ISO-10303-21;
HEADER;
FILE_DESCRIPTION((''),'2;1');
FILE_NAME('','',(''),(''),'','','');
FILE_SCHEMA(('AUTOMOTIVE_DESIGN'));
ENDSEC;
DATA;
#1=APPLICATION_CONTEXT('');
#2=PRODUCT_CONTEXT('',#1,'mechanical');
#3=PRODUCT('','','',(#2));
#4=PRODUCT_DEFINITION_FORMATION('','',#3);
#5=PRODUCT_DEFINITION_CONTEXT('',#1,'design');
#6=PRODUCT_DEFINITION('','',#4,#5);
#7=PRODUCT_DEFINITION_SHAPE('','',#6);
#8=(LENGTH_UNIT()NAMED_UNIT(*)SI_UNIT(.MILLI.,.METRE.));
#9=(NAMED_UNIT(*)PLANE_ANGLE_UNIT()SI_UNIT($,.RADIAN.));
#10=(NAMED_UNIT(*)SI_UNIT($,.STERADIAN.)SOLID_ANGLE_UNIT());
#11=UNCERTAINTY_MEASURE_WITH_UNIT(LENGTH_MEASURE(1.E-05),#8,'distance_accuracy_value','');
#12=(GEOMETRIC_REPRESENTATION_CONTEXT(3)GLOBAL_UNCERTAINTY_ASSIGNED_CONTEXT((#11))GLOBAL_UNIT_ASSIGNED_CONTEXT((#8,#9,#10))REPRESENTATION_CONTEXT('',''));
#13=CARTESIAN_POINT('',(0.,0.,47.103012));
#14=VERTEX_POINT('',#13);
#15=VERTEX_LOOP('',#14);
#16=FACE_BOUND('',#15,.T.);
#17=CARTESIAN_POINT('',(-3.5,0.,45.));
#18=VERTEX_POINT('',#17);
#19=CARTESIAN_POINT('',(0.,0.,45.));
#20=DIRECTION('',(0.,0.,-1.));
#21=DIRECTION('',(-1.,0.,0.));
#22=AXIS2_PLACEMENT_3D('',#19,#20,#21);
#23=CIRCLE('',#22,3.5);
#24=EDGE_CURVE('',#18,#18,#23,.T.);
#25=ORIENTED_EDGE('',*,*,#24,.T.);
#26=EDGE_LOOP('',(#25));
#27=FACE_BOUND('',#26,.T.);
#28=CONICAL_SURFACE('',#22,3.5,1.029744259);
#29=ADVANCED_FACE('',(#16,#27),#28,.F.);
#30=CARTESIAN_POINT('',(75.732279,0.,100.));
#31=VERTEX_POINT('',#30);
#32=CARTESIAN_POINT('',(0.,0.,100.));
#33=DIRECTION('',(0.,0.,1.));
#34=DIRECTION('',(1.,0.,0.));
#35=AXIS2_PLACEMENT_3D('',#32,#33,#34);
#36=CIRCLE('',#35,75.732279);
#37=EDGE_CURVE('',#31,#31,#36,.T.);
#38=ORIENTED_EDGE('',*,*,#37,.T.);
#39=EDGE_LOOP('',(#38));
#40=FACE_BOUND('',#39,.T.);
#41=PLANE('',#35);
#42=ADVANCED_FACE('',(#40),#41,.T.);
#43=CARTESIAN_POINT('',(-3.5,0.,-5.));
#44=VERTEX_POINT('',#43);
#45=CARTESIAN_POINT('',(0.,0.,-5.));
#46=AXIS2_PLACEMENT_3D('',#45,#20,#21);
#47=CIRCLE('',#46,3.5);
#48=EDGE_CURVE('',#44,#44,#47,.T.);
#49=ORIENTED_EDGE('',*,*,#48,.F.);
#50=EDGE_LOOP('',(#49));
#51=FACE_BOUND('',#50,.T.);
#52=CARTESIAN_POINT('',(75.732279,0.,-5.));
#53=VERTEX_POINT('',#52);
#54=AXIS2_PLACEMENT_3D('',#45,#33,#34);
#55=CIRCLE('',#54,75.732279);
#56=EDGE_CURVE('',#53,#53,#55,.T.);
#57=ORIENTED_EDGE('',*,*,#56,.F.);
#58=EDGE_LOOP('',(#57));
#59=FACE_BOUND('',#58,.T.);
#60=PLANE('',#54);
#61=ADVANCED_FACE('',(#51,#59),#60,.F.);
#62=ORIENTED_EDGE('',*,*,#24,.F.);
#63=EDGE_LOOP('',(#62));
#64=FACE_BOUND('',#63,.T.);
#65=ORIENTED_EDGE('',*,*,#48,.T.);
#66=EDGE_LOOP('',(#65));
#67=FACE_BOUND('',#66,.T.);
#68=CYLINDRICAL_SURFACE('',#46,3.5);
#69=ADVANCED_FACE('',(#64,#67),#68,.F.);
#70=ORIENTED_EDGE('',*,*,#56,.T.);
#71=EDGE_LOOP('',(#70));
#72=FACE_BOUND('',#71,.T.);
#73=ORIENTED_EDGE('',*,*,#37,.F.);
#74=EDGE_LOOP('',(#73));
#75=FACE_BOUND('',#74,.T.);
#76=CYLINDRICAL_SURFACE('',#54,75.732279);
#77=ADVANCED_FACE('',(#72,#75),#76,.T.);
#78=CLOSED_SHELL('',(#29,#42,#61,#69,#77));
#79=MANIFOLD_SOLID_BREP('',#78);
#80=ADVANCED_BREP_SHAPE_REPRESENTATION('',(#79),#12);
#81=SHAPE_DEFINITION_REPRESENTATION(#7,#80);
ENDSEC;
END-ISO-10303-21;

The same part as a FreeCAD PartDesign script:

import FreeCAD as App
import Part
import Sketcher
Q = App.Units.Quantity

doc = App.newDocument("Part")
params = doc.addObject("Spreadsheet::Sheet", "Params")
for row, (alias, value) in enumerate([
    ("pad1_length", "100 mm"),
    ("pad1_length2", "5 mm"),
    ("sketch2_diameter", "7 mm"),
    ("hole_diameter", "7 mm"),
    ("hole_depth", "50 mm"),
], start=1):
    params.set(f"A{row}", alias)
    params.set(f"B{row}", "=" + value)
    params.setAlias(f"B{row}", alias)

body = doc.addObject("PartDesign::Body", "Body")

sketch1 = body.newObject("Sketcher::SketchObject", "Sketch")
sketch1.AttachmentSupport = (doc.getObject("XY_Plane"), [""])
sketch1.MapMode = "FlatFace"
sketch1.addGeometry(Part.Circle(App.Vector(0, 0, 0), App.Vector(0, 0, 1), 76), False)
sketch1.addConstraint([
    Sketcher.Constraint("Coincident", 0, 3, -1, 1),
    Sketcher.Constraint("Diameter", 0, Q("151.464558 mm")),
])
pad1 = body.newObject("PartDesign::Pad", "Pad")
pad1.Profile = sketch1
pad1.Type = "TwoLengths"
pad1.setExpression("Length", "Params.pad1_length")
pad1.setExpression("Length2", "Params.pad1_length2")

sketch2 = body.newObject("Sketcher::SketchObject", "Sketch001")
sketch2.AttachmentSupport = (doc.getObject("XY_Plane"), [""])
sketch2.MapMode = "FlatFace"
sketch2.AttachmentOffset = App.Placement(App.Vector(0, 0, -5), App.Rotation())
sketch2.addGeometry(Part.Circle(App.Vector(0, 0, 0), App.Vector(0, 0, 1), 3.5), False)
sketch2.addConstraint([
    Sketcher.Constraint("Coincident", 0, 3, -1, 1),
    Sketcher.Constraint("Diameter", 0, Q("7 mm")),
])
sketch2.setExpression("Constraints[1]", "Params.sketch2_diameter")
doc.recompute()
hole = body.newObject("PartDesign::Hole", "Hole")
hole.Profile = sketch2
hole.ThreadType = "None"
hole.setExpression("Diameter", "Params.hole_diameter")
hole.DepthType = "Dimension"
hole.setExpression("Depth", "Params.hole_depth")
hole.DrillPoint = "Angled"
hole.DrillPointAngle = 118
hole.Reversed = True

doc.recompute()
